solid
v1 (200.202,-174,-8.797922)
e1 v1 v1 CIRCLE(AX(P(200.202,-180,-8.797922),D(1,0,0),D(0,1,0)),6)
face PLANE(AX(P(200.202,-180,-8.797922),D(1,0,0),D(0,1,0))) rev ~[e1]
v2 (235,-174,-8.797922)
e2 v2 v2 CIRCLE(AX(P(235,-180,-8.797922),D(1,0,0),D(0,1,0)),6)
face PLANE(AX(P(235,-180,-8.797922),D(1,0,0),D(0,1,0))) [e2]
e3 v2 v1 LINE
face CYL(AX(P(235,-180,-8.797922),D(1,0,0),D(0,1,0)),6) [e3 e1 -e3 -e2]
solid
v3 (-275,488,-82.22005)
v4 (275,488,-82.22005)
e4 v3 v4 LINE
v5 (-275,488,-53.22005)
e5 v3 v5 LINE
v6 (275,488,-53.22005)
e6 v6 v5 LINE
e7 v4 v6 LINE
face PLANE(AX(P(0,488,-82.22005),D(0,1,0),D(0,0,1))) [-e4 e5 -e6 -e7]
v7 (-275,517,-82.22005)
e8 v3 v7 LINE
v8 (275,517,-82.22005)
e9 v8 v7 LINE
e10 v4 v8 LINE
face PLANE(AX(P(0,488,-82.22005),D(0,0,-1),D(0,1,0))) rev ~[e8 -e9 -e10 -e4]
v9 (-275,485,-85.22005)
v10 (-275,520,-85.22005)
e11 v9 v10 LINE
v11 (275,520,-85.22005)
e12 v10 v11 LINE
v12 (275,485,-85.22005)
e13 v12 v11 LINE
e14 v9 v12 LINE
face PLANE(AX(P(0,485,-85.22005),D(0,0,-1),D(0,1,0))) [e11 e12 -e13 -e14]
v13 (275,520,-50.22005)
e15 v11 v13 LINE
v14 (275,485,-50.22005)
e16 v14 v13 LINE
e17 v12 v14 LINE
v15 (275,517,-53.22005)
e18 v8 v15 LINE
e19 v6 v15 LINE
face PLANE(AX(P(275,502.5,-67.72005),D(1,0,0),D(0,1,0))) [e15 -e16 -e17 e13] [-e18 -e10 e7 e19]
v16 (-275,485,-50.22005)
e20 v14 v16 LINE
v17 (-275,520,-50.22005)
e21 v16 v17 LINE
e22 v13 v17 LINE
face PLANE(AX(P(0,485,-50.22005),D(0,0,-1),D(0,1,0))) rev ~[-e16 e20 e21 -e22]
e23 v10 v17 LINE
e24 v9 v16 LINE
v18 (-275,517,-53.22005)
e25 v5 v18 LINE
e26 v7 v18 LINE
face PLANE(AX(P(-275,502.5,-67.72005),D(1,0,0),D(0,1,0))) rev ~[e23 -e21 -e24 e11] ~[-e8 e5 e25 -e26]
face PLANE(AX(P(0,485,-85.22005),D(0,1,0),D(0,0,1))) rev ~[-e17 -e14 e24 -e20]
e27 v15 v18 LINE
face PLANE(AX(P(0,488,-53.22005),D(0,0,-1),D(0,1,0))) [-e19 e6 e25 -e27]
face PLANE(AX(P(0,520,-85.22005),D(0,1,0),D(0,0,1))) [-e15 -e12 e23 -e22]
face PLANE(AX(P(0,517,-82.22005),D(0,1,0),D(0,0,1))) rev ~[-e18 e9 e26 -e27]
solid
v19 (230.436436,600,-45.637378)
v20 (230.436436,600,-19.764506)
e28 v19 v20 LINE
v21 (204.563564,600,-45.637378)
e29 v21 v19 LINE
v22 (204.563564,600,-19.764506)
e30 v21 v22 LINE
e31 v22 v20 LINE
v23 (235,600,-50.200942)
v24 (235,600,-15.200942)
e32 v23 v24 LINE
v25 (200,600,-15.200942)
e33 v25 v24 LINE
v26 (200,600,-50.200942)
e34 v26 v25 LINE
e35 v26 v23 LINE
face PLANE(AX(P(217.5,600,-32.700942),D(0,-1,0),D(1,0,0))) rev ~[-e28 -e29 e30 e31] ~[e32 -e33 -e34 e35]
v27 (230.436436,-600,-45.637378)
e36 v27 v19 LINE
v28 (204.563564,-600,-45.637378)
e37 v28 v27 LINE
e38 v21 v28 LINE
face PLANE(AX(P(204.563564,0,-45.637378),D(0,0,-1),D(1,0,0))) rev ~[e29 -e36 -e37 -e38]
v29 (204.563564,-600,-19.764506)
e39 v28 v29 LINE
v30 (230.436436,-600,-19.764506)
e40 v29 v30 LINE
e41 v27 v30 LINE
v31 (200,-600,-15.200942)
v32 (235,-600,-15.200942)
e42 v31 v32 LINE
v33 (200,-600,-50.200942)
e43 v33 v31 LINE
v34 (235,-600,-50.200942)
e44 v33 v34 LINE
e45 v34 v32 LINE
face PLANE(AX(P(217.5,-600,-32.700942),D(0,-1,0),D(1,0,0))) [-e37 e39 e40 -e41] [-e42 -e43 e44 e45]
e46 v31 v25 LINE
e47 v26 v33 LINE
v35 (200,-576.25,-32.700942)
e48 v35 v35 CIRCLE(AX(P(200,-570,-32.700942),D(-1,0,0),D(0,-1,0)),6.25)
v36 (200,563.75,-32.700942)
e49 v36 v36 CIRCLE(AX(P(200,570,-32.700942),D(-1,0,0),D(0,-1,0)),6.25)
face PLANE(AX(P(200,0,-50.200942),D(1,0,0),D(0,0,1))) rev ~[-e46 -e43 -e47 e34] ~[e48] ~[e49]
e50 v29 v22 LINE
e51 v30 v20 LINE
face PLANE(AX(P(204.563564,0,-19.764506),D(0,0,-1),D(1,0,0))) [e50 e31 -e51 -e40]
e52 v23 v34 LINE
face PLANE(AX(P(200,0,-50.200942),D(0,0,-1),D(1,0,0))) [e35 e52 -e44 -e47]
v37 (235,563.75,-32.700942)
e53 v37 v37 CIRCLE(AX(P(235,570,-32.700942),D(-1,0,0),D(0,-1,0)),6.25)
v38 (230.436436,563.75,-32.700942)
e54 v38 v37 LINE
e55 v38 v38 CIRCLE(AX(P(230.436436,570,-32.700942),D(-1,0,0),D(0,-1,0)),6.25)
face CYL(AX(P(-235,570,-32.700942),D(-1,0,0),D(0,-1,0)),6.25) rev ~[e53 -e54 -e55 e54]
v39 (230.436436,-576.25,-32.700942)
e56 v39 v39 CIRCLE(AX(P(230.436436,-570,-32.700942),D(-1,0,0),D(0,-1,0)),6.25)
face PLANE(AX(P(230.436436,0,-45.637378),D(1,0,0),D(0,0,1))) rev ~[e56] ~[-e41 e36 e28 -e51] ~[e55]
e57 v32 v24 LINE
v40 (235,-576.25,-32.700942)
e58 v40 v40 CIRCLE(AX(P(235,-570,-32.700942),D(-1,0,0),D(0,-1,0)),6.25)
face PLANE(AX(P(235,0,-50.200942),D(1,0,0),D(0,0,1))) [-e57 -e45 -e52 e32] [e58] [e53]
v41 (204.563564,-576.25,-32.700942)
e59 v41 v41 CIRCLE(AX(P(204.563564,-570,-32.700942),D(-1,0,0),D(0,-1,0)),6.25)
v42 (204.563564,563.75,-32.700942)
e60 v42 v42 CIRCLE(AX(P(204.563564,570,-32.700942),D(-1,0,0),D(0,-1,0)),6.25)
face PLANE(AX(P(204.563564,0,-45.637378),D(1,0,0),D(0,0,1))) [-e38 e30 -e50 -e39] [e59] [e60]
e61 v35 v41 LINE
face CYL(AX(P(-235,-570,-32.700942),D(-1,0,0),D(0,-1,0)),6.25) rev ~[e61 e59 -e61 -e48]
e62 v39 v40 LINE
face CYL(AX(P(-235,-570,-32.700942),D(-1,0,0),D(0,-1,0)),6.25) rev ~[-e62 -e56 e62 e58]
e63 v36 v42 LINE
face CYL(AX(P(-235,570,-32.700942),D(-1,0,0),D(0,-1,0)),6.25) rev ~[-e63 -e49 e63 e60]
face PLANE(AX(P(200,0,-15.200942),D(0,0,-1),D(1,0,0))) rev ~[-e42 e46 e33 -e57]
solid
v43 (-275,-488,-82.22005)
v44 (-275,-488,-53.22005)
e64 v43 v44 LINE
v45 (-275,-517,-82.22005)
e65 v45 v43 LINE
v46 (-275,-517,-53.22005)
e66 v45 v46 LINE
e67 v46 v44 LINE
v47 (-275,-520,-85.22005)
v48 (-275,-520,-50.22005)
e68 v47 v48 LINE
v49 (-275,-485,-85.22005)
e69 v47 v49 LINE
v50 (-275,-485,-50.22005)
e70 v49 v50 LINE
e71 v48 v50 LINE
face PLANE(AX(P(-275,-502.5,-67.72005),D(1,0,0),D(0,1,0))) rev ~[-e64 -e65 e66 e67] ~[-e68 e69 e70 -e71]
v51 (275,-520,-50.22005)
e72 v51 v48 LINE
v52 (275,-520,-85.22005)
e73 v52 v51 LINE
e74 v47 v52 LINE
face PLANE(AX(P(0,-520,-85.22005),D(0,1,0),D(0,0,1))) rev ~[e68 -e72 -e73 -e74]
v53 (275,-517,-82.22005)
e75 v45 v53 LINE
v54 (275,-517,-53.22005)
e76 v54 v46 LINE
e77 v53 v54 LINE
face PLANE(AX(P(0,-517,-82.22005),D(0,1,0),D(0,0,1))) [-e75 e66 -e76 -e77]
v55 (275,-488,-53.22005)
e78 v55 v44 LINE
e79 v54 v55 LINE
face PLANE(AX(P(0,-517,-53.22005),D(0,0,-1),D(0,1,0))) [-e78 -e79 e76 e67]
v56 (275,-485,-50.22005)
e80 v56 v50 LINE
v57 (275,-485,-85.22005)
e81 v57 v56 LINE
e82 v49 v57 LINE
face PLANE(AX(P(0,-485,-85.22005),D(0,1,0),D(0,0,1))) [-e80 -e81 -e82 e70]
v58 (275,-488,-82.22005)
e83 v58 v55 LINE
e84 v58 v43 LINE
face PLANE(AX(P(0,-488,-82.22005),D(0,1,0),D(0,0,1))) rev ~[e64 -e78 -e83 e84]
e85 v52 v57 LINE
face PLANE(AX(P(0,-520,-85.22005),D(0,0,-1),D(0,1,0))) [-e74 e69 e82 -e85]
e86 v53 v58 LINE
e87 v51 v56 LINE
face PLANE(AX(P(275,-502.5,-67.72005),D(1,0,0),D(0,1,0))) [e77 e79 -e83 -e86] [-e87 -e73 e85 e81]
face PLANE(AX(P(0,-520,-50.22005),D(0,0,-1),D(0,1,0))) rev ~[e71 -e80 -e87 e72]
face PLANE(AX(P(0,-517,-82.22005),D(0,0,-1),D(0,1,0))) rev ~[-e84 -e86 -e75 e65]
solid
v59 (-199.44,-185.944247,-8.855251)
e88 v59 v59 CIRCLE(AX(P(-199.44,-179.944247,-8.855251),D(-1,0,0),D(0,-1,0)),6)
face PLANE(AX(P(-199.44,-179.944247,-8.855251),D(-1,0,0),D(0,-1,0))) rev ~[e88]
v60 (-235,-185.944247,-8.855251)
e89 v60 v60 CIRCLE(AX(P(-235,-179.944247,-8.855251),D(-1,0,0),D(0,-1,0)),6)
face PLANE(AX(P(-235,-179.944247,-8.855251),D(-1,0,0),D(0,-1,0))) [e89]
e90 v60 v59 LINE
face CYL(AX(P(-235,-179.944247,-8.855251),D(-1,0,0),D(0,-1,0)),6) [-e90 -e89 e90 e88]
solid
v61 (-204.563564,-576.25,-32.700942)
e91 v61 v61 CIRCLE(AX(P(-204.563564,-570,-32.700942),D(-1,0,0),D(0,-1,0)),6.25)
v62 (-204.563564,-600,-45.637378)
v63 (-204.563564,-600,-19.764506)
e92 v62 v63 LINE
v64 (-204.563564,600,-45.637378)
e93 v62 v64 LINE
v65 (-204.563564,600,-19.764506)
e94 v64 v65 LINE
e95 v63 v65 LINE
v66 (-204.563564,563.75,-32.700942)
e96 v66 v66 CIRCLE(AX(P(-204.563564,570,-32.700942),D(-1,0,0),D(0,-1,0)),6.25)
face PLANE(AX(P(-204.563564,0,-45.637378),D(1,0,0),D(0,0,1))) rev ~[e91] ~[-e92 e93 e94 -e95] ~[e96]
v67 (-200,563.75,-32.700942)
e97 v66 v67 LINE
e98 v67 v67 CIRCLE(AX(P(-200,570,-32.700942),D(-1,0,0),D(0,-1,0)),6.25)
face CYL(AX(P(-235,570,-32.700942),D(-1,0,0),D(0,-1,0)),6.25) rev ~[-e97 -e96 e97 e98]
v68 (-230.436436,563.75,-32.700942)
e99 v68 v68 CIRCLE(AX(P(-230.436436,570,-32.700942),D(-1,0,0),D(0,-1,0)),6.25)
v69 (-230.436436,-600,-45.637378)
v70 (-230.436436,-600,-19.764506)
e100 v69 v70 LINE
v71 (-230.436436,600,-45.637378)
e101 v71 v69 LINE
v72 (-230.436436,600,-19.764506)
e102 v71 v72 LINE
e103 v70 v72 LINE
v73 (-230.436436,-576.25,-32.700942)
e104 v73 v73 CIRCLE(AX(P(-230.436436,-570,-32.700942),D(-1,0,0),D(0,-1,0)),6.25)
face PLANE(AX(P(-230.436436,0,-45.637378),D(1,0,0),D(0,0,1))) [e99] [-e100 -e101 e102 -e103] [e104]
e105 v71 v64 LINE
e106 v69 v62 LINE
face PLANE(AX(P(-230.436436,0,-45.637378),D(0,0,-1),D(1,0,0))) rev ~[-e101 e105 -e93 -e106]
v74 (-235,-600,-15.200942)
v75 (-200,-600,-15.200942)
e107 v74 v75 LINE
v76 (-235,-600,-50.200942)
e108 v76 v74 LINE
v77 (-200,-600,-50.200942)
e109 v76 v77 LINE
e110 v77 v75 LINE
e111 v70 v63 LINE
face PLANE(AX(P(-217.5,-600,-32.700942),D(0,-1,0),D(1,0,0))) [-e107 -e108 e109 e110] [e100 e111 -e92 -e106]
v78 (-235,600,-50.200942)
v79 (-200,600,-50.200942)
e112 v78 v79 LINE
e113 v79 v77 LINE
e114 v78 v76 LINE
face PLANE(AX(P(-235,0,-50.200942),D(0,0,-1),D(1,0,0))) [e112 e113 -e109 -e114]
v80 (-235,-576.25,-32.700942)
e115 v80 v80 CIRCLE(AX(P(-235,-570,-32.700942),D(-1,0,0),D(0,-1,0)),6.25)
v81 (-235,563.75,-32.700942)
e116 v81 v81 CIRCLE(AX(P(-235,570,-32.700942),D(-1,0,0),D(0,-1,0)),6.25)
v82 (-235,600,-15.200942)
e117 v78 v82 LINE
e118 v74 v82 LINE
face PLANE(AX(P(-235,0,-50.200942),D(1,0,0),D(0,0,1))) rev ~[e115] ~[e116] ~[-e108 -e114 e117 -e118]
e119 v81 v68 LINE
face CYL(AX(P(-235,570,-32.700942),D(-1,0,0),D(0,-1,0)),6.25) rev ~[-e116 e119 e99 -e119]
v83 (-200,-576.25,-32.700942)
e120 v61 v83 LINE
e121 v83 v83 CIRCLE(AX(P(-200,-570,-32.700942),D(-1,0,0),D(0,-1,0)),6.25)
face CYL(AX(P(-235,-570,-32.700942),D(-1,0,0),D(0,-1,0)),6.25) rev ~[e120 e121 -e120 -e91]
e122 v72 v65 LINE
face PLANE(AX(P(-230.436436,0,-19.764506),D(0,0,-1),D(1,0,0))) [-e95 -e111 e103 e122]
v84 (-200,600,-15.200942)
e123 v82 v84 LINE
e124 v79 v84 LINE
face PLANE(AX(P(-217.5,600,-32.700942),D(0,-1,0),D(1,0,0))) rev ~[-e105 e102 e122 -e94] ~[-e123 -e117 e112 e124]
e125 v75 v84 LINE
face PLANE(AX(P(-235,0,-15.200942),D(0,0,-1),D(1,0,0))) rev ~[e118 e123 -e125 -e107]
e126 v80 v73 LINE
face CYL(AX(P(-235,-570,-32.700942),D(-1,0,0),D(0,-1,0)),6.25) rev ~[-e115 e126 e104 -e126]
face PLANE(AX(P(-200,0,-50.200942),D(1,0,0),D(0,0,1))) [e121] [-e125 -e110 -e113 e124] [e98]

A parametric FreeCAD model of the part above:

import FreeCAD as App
import Part
import Sketcher
from FreeCAD import Vector

doc = App.newDocument("Part")
body = doc.addObject("PartDesign::Body", "Body")

sketch1 = doc.addObject("Sketcher::SketchObject", "Sketch")
body.addObject(sketch1)
sketch1.AttachmentSupport = (doc.XZ_Plane, [""])
sketch1.MapMode = "FlatFace"
sketch1.addGeometry([
    Part.LineSegment(Vector(-235, -15, 0), Vector(-235, -50, 0)),
    Part.LineSegment(Vector(-235, -50, 0), Vector(-200, -50, 0)),
    Part.LineSegment(Vector(-200, -50, 0), Vector(-200, -15, 0)),
    Part.LineSegment(Vector(-200, -15, 0), Vector(-235, -15, 0)),
    Part.LineSegment(Vector(-205, -46, 0), Vector(-230, -46, 0)),
    Part.LineSegment(Vector(-230, -46, 0), Vector(-230, -20, 0)),
    Part.LineSegment(Vector(-230, -20, 0), Vector(-205, -20, 0)),
    Part.LineSegment(Vector(-205, -20, 0), Vector(-205, -46, 0)),
], False)
sketch1.addConstraint([
    Sketcher.Constraint("Coincident", 0, 2, 1, 1),
    Sketcher.Constraint("Coincident", 1, 2, 2, 1),
    Sketcher.Constraint("Coincident", 2, 2, 3, 1),
    Sketcher.Constraint("Coincident", 3, 2, 0, 1),
    Sketcher.Constraint("Coincident", 4, 2, 5, 1),
    Sketcher.Constraint("Coincident", 5, 2, 6, 1),
    Sketcher.Constraint("Coincident", 6, 2, 7, 1),
    Sketcher.Constraint("Coincident", 7, 2, 4, 1),
    Sketcher.Constraint("Vertical", 0),
    Sketcher.Constraint("Horizontal", 1),
    Sketcher.Constraint("Vertical", 2),
    Sketcher.Constraint("Horizontal", 3),
    Sketcher.Constraint("Horizontal", 4),
    Sketcher.Constraint("Vertical", 5),
    Sketcher.Constraint("Horizontal", 6),
    Sketcher.Constraint("Vertical", 7),
    Sketcher.Constraint("Equal", 3, 0),
    Sketcher.Constraint("Equal", 6, 5),
    Sketcher.Constraint("DistanceX", 1, 1, 1, 2, 35.0),
    Sketcher.Constraint("DistanceX", 0, 2, -1, 1, 235.0),
    Sketcher.Constraint("DistanceX", 4, 2, 4, 1, 25.872871),
    Sketcher.Constraint("DistanceY", 0, 2, -1, 1, 50.200942),
    Sketcher.Constraint("DistanceX", 4, 2, -1, 1, 230.436436),
    Sketcher.Constraint("DistanceY", 4, 2, -1, 1, 45.637378),
])
pad1 = doc.addObject("PartDesign::Pad", "Pad")
body.addObject(pad1)
pad1.Profile = sketch1
pad1.Length = 1200
pad1.Midplane = True
body2 = doc.addObject("PartDesign::Body", "Body001")

sketch2 = doc.addObject("Sketcher::SketchObject", "Sketch001")
body2.addObject(sketch2)
sketch2.AttachmentSupport = (doc.getObject("XZ_Plane001"), [""])
sketch2.MapMode = "FlatFace"
sketch2.addGeometry([
    Part.LineSegment(Vector(200, -15, 0), Vector(200, -50, 0)),
    Part.LineSegment(Vector(200, -50, 0), Vector(235, -50, 0)),
    Part.LineSegment(Vector(235, -50, 0), Vector(235, -15, 0)),
    Part.LineSegment(Vector(235, -15, 0), Vector(200, -15, 0)),
    Part.LineSegment(Vector(230, -46, 0), Vector(205, -46, 0)),
    Part.LineSegment(Vector(205, -46, 0), Vector(205, -20, 0)),
    Part.LineSegment(Vector(205, -20, 0), Vector(230, -20, 0)),
    Part.LineSegment(Vector(230, -20, 0), Vector(230, -46, 0)),
], False)
sketch2.addConstraint([
    Sketcher.Constraint("Coincident", 0, 2, 1, 1),
    Sketcher.Constraint("Coincident", 1, 2, 2, 1),
    Sketcher.Constraint("Coincident", 2, 2, 3, 1),
    Sketcher.Constraint("Coincident", 3, 2, 0, 1),
    Sketcher.Constraint("Coincident", 4, 2, 5, 1),
    Sketcher.Constraint("Coincident", 5, 2, 6, 1),
    Sketcher.Constraint("Coincident", 6, 2, 7, 1),
    Sketcher.Constraint("Coincident", 7, 2, 4, 1),
    Sketcher.Constraint("Vertical", 0),
    Sketcher.Constraint("Horizontal", 1),
    Sketcher.Constraint("Vertical", 2),
    Sketcher.Constraint("Horizontal", 3),
    Sketcher.Constraint("Horizontal", 4),
    Sketcher.Constraint("Vertical", 5),
    Sketcher.Constraint("Horizontal", 6),
    Sketcher.Constraint("Vertical", 7),
    Sketcher.Constraint("Equal", 3, 0),
    Sketcher.Constraint("Equal", 6, 5),
    Sketcher.Constraint("DistanceX", 1, 1, 1, 2, 35.0),
    Sketcher.Constraint("DistanceX", -1, 1, 0, 2, 200.0),
    Sketcher.Constraint("DistanceX", 4, 2, 4, 1, 25.872871),
    Sketcher.Constraint("DistanceY", 0, 2, -1, 1, 50.200942),
    Sketcher.Constraint("DistanceX", -1, 1, 4, 2, 204.563564),
    Sketcher.Constraint("DistanceY", 4, 2, -1, 1, 45.637378),
])
pad2 = doc.addObject("PartDesign::Pad", "Pad001")
body2.addObject(pad2)
pad2.Profile = sketch2
pad2.Length = 1200
pad2.Midplane = True
body3 = doc.addObject("PartDesign::Body", "Body002")

sketch3 = doc.addObject("Sketcher::SketchObject", "Sketch002")
body3.addObject(sketch3)
sketch3.AttachmentSupport = (doc.getObject("YZ_Plane002"), [""])
sketch3.MapMode = "FlatFace"
sketch3.addGeometry([
    Part.LineSegment(Vector(485, -50, 0), Vector(485, -85, 0)),
    Part.LineSegment(Vector(485, -85, 0), Vector(520, -85, 0)),
    Part.LineSegment(Vector(520, -85, 0), Vector(520, -50, 0)),
    Part.LineSegment(Vector(520, -50, 0), Vector(485, -50, 0)),
    Part.LineSegment(Vector(517, -82, 0), Vector(488, -82, 0)),
    Part.LineSegment(Vector(488, -82, 0), Vector(488, -53, 0)),
    Part.LineSegment(Vector(488, -53, 0), Vector(517, -53, 0)),
    Part.LineSegment(Vector(517, -53, 0), Vector(517, -82, 0)),
], False)
sketch3.addConstraint([
    Sketcher.Constraint("Coincident", 0, 2, 1, 1),
    Sketcher.Constraint("Coincident", 1, 2, 2, 1),
    Sketcher.Constraint("Coincident", 2, 2, 3, 1),
    Sketcher.Constraint("Coincident", 3, 2, 0, 1),
    Sketcher.Constraint("Coincident", 4, 2, 5, 1),
    Sketcher.Constraint("Coincident", 5, 2, 6, 1),
    Sketcher.Constraint("Coincident", 6, 2, 7, 1),
    Sketcher.Constraint("Coincident", 7, 2, 4, 1),
    Sketcher.Constraint("Vertical", 0),
    Sketcher.Constraint("Horizontal", 1),
    Sketcher.Constraint("Vertical", 2),
    Sketcher.Constraint("Horizontal", 3),
    Sketcher.Constraint("Horizontal", 4),
    Sketcher.Constraint("Vertical", 5),
    Sketcher.Constraint("Horizontal", 6),
    Sketcher.Constraint("Vertical", 7),
    Sketcher.Constraint("Equal", 3, 0),
    Sketcher.Constraint("Equal", 6, 5),
    Sketcher.Constraint("DistanceX", 1, 1, 1, 2, 35.0),
    Sketcher.Constraint("DistanceX", 4, 2, 4, 1, 29.0),
    Sketcher.Constraint("DistanceX", -1, 1, 0, 2, 485.0),
    Sketcher.Constraint("DistanceX", -1, 1, 4, 2, 488.0),
    Sketcher.Constraint("DistanceY", 0, 2, 4, 2, 3.0),
    Sketcher.Constraint("DistanceY", 0, 2, -1, 1, 85.22005),
])
pad3 = doc.addObject("PartDesign::Pad", "Pad002")
body3.addObject(pad3)
pad3.Profile = sketch3
pad3.Length = 550
pad3.Midplane = True
body4 = doc.addObject("PartDesign::Body", "Body003")

sketch4 = doc.addObject("Sketcher::SketchObject", "Sketch003")
body4.addObject(sketch4)
sketch4.AttachmentSupport = (doc.getObject("YZ_Plane003"), [""])
sketch4.MapMode = "FlatFace"
sketch4.addGeometry([
    Part.LineSegment(Vector(-520, -50, 0), Vector(-520, -85, 0)),
    Part.LineSegment(Vector(-520, -85, 0), Vector(-485, -85, 0)),
    Part.LineSegment(Vector(-485, -85, 0), Vector(-485, -50, 0)),
    Part.LineSegment(Vector(-485, -50, 0), Vector(-520, -50, 0)),
    Part.LineSegment(Vector(-488, -82, 0), Vector(-517, -82, 0)),
    Part.LineSegment(Vector(-517, -82, 0), Vector(-517, -53, 0)),
    Part.LineSegment(Vector(-517, -53, 0), Vector(-488, -53, 0)),
    Part.LineSegment(Vector(-488, -53, 0), Vector(-488, -82, 0)),
], False)
sketch4.addConstraint([
    Sketcher.Constraint("Coincident", 0, 2, 1, 1),
    Sketcher.Constraint("Coincident", 1, 2, 2, 1),
    Sketcher.Constraint("Coincident", 2, 2, 3, 1),
    Sketcher.Constraint("Coincident", 3, 2, 0, 1),
    Sketcher.Constraint("Coincident", 4, 2, 5, 1),
    Sketcher.Constraint("Coincident", 5, 2, 6, 1),
    Sketcher.Constraint("Coincident", 6, 2, 7, 1),
    Sketcher.Constraint("Coincident", 7, 2, 4, 1),
    Sketcher.Constraint("Vertical", 0),
    Sketcher.Constraint("Horizontal", 1),
    Sketcher.Constraint("Vertical", 2),
    Sketcher.Constraint("Horizontal", 3),
    Sketcher.Constraint("Horizontal", 4),
    Sketcher.Constraint("Vertical", 5),
    Sketcher.Constraint("Horizontal", 6),
    Sketcher.Constraint("Vertical", 7),
    Sketcher.Constraint("Equal", 3, 0),
    Sketcher.Constraint("Equal", 6, 5),
    Sketcher.Constraint("DistanceX", 1, 1, 1, 2, 35.0),
    Sketcher.Constraint("DistanceX", 4, 2, 4, 1, 29.0),
    Sketcher.Constraint("DistanceX", 0, 2, -1, 1, 520.0),
    Sketcher.Constraint("DistanceX", 4, 2, -1, 1, 517.0),
    Sketcher.Constraint("DistanceY", 0, 2, 4, 2, 3.0),
    Sketcher.Constraint("DistanceY", 0, 2, -1, 1, 85.22005),
])
pad4 = doc.addObject("PartDesign::Pad", "Pad003")
body4.addObject(pad4)
pad4.Profile = sketch4
pad4.Length = 550
pad4.Midplane = True
body5 = doc.addObject("PartDesign::Body", "Body004")
body5.AllowCompound = True

sketch5 = doc.addObject("Sketcher::SketchObject", "Sketch004")
body5.addObject(sketch5)
sketch5.AttachmentSupport = (doc.getObject("YZ_Plane004"), [""])
sketch5.MapMode = "FlatFace"
sketch5.AttachmentOffset = App.Placement(Vector(0, 0, -235), App.Rotation())
sketch5.addGeometry([
    Part.Circle(Vector(570, -33, 0), Vector(0, 0, 1), 6),
    Part.Circle(Vector(-570, -33, 0), Vector(0, 0, 1), 6),
], False)
sketch5.addConstraint([
    Sketcher.Constraint("Equal", 0, 1),
    Sketcher.Constraint("Symmetric", 0, 3, 1, 3, -2),
    Sketcher.Constraint("Diameter", 0, 12.5),
    Sketcher.Constraint("DistanceX", -1, 1, 0, 3, 570.0),
    Sketcher.Constraint("DistanceY", 0, 3, -1, 1, 32.700942),
])
pad5 = doc.addObject("PartDesign::Pad", "Pad004")
body5.addObject(pad5)
pad5.Profile = sketch5
pad5.Length = 501.65
doc.recompute()

body6 = doc.addObject("PartDesign::Body", "Body005")
body6.BaseFeature = body5
boolean = doc.addObject("PartDesign::Boolean", "Boolean")
body.addObject(boolean)
boolean.Type = "Cut"
boolean.addObjects([body6])
doc.recompute()

sketch6 = doc.addObject("Sketcher::SketchObject", "Sketch005")
body.addObject(sketch6)
sketch6.AttachmentSupport = (doc.YZ_Plane, [""])
sketch6.MapMode = "FlatFace"
sketch6.AttachmentOffset = App.Placement(Vector(0, 0, 235), App.Rotation())
sketch6.addGeometry([
    Part.Circle(Vector(-570, -33, 0), Vector(0, 0, 1), 6),
    Part.Circle(Vector(570, -33, 0), Vector(0, 0, 1), 6),
], False)
sketch6.addConstraint([
    Sketcher.Constraint("Equal", 0, 1),
    Sketcher.Constraint("Symmetric", 0, 3, 1, 3, -2),
    Sketcher.Constraint("Diameter", 0, 12.5),
    Sketcher.Constraint("DistanceX", 0, 3, -1, 1, 570.0),
    Sketcher.Constraint("DistanceY", 0, 3, -1, 1, 32.700942),
])
pocket1 = doc.addObject("PartDesign::Pocket", "Pocket")
body.addObject(pocket1)
pocket1.Profile = sketch6
pocket1.Length = 39.37
doc.recompute()

boolean2 = doc.addObject("PartDesign::Boolean", "Boolean001")
body2.addObject(boolean2)
boolean2.Type = "Cut"
boolean2.addObjects([body5])
body7 = doc.addObject("PartDesign::Body", "Body006")

sketch7 = doc.addObject("Sketcher::SketchObject", "Sketch006")
body7.addObject(sketch7)
sketch7.AttachmentSupport = (doc.getObject("YZ_Plane006"), [""])
sketch7.MapMode = "FlatFace"
sketch7.AttachmentOffset = App.Placement(Vector(0, 0, 235), App.Rotation())
sketch7.addGeometry(Part.Circle(Vector(-180, -9, 0), Vector(0, 0, 1), 6), False)
sketch7.addConstraint([
    Sketcher.Constraint("Diameter", 0, 12.0),
    Sketcher.Constraint("DistanceX", 0, 3, -1, 1, 180.0),
    Sketcher.Constraint("DistanceY", 0, 3, -1, 1, 8.797922),
])
pad6 = doc.addObject("PartDesign::Pad", "Pad005")
body7.addObject(pad6)
pad6.Profile = sketch7
pad6.Length = 34.798
pad6.Reversed = True
body8 = doc.addObject("PartDesign::Body", "Body007")

sketch8 = doc.addObject("Sketcher::SketchObject", "Sketch007")
body8.addObject(sketch8)
sketch8.AttachmentSupport = (doc.getObject("YZ_Plane007"), [""])
sketch8.MapMode = "FlatFace"
sketch8.AttachmentOffset = App.Placement(Vector(0, 0, -235), App.Rotation())
sketch8.addGeometry(Part.Circle(Vector(-180, -9, 0), Vector(0, 0, 1), 6), False)
sketch8.addConstraint([
    Sketcher.Constraint("Diameter", 0, 12.0),
    Sketcher.Constraint("DistanceY", 0, 3, -1, 1, 8.855251),
    Sketcher.Constraint("DistanceX", 0, 3, -1, 1, 179.944247),
])
pad7 = doc.addObject("PartDesign::Pad", "Pad006")
body8.addObject(pad7)
pad7.Profile = sketch8
pad7.Length = 35.56

doc.recompute()
